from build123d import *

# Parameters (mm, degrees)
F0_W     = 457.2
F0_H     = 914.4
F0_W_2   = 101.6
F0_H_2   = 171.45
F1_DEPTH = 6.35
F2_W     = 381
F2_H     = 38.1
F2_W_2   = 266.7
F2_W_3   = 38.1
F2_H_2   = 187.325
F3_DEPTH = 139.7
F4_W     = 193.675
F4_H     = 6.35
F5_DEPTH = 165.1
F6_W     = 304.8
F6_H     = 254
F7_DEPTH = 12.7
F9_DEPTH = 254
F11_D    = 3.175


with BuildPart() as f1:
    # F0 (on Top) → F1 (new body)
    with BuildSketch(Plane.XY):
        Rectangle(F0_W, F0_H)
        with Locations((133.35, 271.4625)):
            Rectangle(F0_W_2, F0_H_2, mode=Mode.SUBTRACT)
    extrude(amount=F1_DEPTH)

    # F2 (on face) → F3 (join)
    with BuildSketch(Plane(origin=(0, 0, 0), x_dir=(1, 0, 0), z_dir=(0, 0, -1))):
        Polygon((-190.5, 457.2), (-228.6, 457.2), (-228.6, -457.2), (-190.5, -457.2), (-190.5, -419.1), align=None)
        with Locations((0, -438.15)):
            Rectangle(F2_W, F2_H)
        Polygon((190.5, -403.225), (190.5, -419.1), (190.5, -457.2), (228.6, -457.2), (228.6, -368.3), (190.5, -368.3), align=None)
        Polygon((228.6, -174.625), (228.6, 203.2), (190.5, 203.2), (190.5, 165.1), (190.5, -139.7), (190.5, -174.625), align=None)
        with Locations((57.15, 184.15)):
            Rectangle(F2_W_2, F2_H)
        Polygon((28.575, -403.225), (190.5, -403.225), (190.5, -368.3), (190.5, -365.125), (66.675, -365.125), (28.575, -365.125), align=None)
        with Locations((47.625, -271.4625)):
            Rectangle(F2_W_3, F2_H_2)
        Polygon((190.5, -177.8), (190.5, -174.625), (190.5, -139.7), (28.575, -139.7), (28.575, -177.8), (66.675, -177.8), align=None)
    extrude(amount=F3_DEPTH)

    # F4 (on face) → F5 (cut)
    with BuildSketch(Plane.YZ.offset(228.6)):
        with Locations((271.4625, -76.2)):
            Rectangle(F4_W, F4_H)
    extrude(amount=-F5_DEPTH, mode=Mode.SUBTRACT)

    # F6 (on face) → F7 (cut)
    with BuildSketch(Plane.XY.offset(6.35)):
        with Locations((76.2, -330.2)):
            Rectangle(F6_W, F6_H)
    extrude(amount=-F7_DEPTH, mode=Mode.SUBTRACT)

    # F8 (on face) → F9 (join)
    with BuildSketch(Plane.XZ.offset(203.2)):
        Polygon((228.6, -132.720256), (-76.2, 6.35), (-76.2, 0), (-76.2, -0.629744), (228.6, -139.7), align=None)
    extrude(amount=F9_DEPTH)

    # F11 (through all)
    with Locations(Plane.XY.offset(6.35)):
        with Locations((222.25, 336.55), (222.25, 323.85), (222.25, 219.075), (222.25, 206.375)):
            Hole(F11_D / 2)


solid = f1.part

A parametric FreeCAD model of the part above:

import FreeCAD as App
import Part
import Sketcher
from FreeCAD import Vector
Q = App.Units.Quantity

doc = App.newDocument("Part")
body = doc.addObject("PartDesign::Body", "Body")

# Sketch on XY plane
sketch1 = body.newObject("Sketcher::SketchObject", "Sketch")
sketch1.AttachmentSupport = (doc.getObject("XY_Plane"), [""])
sketch1.MapMode = "FlatFace"
sketch1.addGeometry(Part.LineSegment(Vector(-229, 457, 0), Vector(-229, -457, 0)), False)
sketch1.addGeometry(Part.LineSegment(Vector(-229, -457, 0), Vector(229, -457, 0)), False)
sketch1.addGeometry(Part.LineSegment(Vector(229, -457, 0), Vector(229, 457, 0)), False)
sketch1.addGeometry(Part.LineSegment(Vector(229, 457, 0), Vector(-229, 457, 0)), False)
sketch1.addGeometry(Part.LineSegment(Vector(184, 186, 0), Vector(83, 186, 0)), False)
sketch1.addGeometry(Part.LineSegment(Vector(83, 186, 0), Vector(83, 357, 0)), False)
sketch1.addGeometry(Part.LineSegment(Vector(83, 357, 0), Vector(184, 357, 0)), False)
sketch1.addGeometry(Part.LineSegment(Vector(184, 357, 0), Vector(184, 186, 0)), False)
sketch1.addConstraint(Sketcher.Constraint("Coincident", 0, 2, 1, 1))
sketch1.addConstraint(Sketcher.Constraint("Coincident", 1, 2, 2, 1))
sketch1.addConstraint(Sketcher.Constraint("Coincident", 2, 2, 3, 1))
sketch1.addConstraint(Sketcher.Constraint("Coincident", 3, 2, 0, 1))
sketch1.addConstraint(Sketcher.Constraint("Coincident", 4, 2, 5, 1))
sketch1.addConstraint(Sketcher.Constraint("Coincident", 5, 2, 6, 1))
sketch1.addConstraint(Sketcher.Constraint("Coincident", 6, 2, 7, 1))
sketch1.addConstraint(Sketcher.Constraint("Coincident", 7, 2, 4, 1))
sketch1.addConstraint(Sketcher.Constraint("Vertical", 0))
sketch1.addConstraint(Sketcher.Constraint("Horizontal", 1))
sketch1.addConstraint(Sketcher.Constraint("Vertical", 2))
sketch1.addConstraint(Sketcher.Constraint("Horizontal", 3))
sketch1.addConstraint(Sketcher.Constraint("Horizontal", 4))
sketch1.addConstraint(Sketcher.Constraint("Vertical", 5))
sketch1.addConstraint(Sketcher.Constraint("Horizontal", 6))
sketch1.addConstraint(Sketcher.Constraint("Vertical", 7))
sketch1.addConstraint(Sketcher.Constraint("Symmetric", 0, 2, 2, 2, -1, 1))
sketch1.addConstraint(Sketcher.Constraint("DistanceX", 1, 1, 1, 2, Q("18 in")))
sketch1.addConstraint(Sketcher.Constraint("DistanceX", 4, 2, 4, 1, Q("4 in")))
sketch1.addConstraint(Sketcher.Constraint("DistanceY", 0, 2, 0, 1, Q("36 in")))
sketch1.addConstraint(Sketcher.Constraint("DistanceY", 5, 1, 5, 2, Q("6.75 in")))
sketch1.addConstraint(Sketcher.Constraint("DistanceX", -1, 1, 4, 2, Q("3.25 in")))
sketch1.addConstraint(Sketcher.Constraint("DistanceY", -1, 1, 4, 2, Q("7.3125 in")))
pad1 = body.newObject("PartDesign::Pad", "Pad")
pad1.Profile = sketch1
pad1.Length = Q("0.25 in")

# Sketch on XY plane
sketch2 = body.newObject("Sketcher::SketchObject", "Sketch001")
sketch2.AttachmentSupport = (doc.getObject("XY_Plane"), [""])
sketch2.MapMode = "FlatFace"
sketch2.addGeometry(Part.LineSegment(Vector(-190.5, -457.2, 0), Vector(-228.6, -457.2, 0)), False)
sketch2.addGeometry(Part.LineSegment(Vector(-228.6, -457.2, 0), Vector(-228.6, 457.2, 0)), False)
sketch2.addGeometry(Part.LineSegment(Vector(-228.6, 457.2, 0), Vector(228.6, 457.2, 0)), False)
sketch2.addGeometry(Part.LineSegment(Vector(228.6, 457.2, 0), Vector(228.6, 368.3, 0)), False)
sketch2.addGeometry(Part.LineSegment(Vector(228.6, 368.3, 0), Vector(190.5, 368.3, 0)), False)
sketch2.addGeometry(Part.LineSegment(Vector(190.5, 368.3, 0), Vector(190.5, 365.1, 0)), False)
sketch2.addGeometry(Part.LineSegment(Vector(190.5, 365.1, 0), Vector(66.7, 365.1, 0)), False)
sketch2.addGeometry(Part.LineSegment(Vector(66.7, 365.1, 0), Vector(66.7, 177.8, 0)), False)
sketch2.addGeometry(Part.LineSegment(Vector(66.7, 177.8, 0), Vector(190.5, 177.8, 0)), False)
sketch2.addGeometry(Part.LineSegment(Vector(190.5, 177.8, 0), Vector(190.5, 174.6, 0)), False)
sketch2.addGeometry(Part.LineSegment(Vector(190.5, 174.6, 0), Vector(228.6, 174.6, 0)), False)
sketch2.addGeometry(Part.LineSegment(Vector(228.6, 174.6, 0), Vector(228.6, -203.2, 0)), False)
sketch2.addGeometry(Part.LineSegment(Vector(228.6, -203.2, 0), Vector(-76.2, -203.2, 0)), False)
sketch2.addGeometry(Part.LineSegment(Vector(-76.2, -203.2, 0), Vector(-76.2, -165.1, 0)), False)
sketch2.addGeometry(Part.LineSegment(Vector(-76.2, -165.1, 0), Vector(190.5, -165.1, 0)), False)
sketch2.addGeometry(Part.LineSegment(Vector(190.5, -165.1, 0), Vector(190.5, 139.7, 0)), False)
sketch2.addGeometry(Part.LineSegment(Vector(190.5, 139.7, 0), Vector(28.6, 139.7, 0)), False)
sketch2.addGeometry(Part.LineSegment(Vector(28.6, 139.7, 0), Vector(28.6, 403.2, 0)), False)
sketch2.addGeometry(Part.LineSegment(Vector(28.6, 403.2, 0), Vector(190.5, 403.2, 0)), False)
sketch2.addGeometry(Part.LineSegment(Vector(190.5, 403.2, 0), Vector(190.5, 419.1, 0)), False)
sketch2.addGeometry(Part.LineSegment(Vector(190.5, 419.1, 0), Vector(-190.5, 419.1, 0)), False)
sketch2.addGeometry(Part.LineSegment(Vector(-190.5, 419.1, 0), Vector(-190.5, -457.2, 0)), False)
sketch2.addConstraint(Sketcher.Constraint("Coincident", 0, 2, 1, 1))
sketch2.addConstraint(Sketcher.Constraint("Coincident", 1, 2, 2, 1))
sketch2.addConstraint(Sketcher.Constraint("Coincident", 2, 2, 3, 1))
sketch2.addConstraint(Sketcher.Constraint("Coincident", 3, 2, 4, 1))
sketch2.addConstraint(Sketcher.Constraint("Coincident", 4, 2, 5, 1))
sketch2.addConstraint(Sketcher.Constraint("Coincident", 5, 2, 6, 1))
sketch2.addConstraint(Sketcher.Constraint("Coincident", 6, 2, 7, 1))
sketch2.addConstraint(Sketcher.Constraint("Coincident", 7, 2, 8, 1))
sketch2.addConstraint(Sketcher.Constraint("Coincident", 8, 2, 9, 1))
sketch2.addConstraint(Sketcher.Constraint("Coincident", 9, 2, 10, 1))
sketch2.addConstraint(Sketcher.Constraint("Coincident", 10, 2, 11, 1))
sketch2.addConstraint(Sketcher.Constraint("Coincident", 11, 2, 12, 1))
sketch2.addConstraint(Sketcher.Constraint("Coincident", 12, 2, 13, 1))
sketch2.addConstraint(Sketcher.Constraint("Coincident", 13, 2, 14, 1))
sketch2.addConstraint(Sketcher.Constraint("Coincident", 14, 2, 15, 1))
sketch2.addConstraint(Sketcher.Constraint("Coincident", 15, 2, 16, 1))
sketch2.addConstraint(Sketcher.Constraint("Coincident", 16, 2, 17, 1))
sketch2.addConstraint(Sketcher.Constraint("Coincident", 17, 2, 18, 1))
sketch2.addConstraint(Sketcher.Constraint("Coincident", 18, 2, 19, 1))
sketch2.addConstraint(Sketcher.Constraint("Coincident", 19, 2, 20, 1))
sketch2.addConstraint(Sketcher.Constraint("Coincident", 20, 2, 21, 1))
sketch2.addConstraint(Sketcher.Constraint("Coincident", 21, 2, 0, 1))
sketch2.addConstraint(Sketcher.Constraint("Horizontal", 0))
sketch2.addConstraint(Sketcher.Constraint("Vertical", 1))
sketch2.addConstraint(Sketcher.Constraint("Horizontal", 2))
sketch2.addConstraint(Sketcher.Constraint("Vertical", 3))
sketch2.addConstraint(Sketcher.Constraint("Horizontal", 4))
sketch2.addConstraint(Sketcher.Constraint("Vertical", 5))
sketch2.addConstraint(Sketcher.Constraint("Horizontal", 6))
sketch2.addConstraint(Sketcher.Constraint("Vertical", 7))
sketch2.addConstraint(Sketcher.Constraint("Horizontal", 8))
sketch2.addConstraint(Sketcher.Constraint("Vertical", 9))
sketch2.addConstraint(Sketcher.Constraint("Horizontal", 10))
sketch2.addConstraint(Sketcher.Constraint("Vertical", 11))
sketch2.addConstraint(Sketcher.Constraint("Horizontal", 12))
sketch2.addConstraint(Sketcher.Constraint("Vertical", 13))
sketch2.addConstraint(Sketcher.Constraint("Horizontal", 14))
sketch2.addConstraint(Sketcher.Constraint("Vertical", 15))
sketch2.addConstraint(Sketcher.Constraint("Horizontal", 16))
sketch2.addConstraint(Sketcher.Constraint("Vertical", 17))
sketch2.addConstraint(Sketcher.Constraint("Horizontal", 18))
sketch2.addConstraint(Sketcher.Constraint("Vertical", 19))
sketch2.addConstraint(Sketcher.Constraint("Horizontal", 20))
sketch2.addConstraint(Sketcher.Constraint("Vertical", 21))
sketch2.addConstraint(Sketcher.Constraint("Symmetric", 0, 2, 2, 2, -1, 1))
sketch2.addConstraint(Sketcher.Constraint("Vertical", 5, 2, 8, 2))
sketch2.addConstraint(Sketcher.Constraint("Vertical", 3, 2, 10, 2))
sketch2.addConstraint(Sketcher.Constraint("Vertical", 9, 2, 14, 2))
sketch2.addConstraint(Sketcher.Constraint("Vertical", 15, 2, 18, 2))
sketch2.addConstraint(Sketcher.Constraint("Equal", 0, 4))
sketch2.addConstraint(Sketcher.Constraint("Equal", 5, 9))
sketch2.addConstraint(Sketcher.Constraint("Equal", 10, 13))
sketch2.addConstraint(Sketcher.Constraint("Equal", 12, 15))
sketch2.addConstraint(Sketcher.Constraint("DistanceX", 2, 1, 2, 2, Q("18 in")))
sketch2.addConstraint(Sketcher.Constraint("DistanceX", 12, 2, 12, 1, Q("12 in")))
sketch2.addConstraint(Sketcher.Constraint("DistanceX", 20, 2, 20, 1, Q("15 in")))
sketch2.addConstraint(Sketcher.Constraint("DistanceY", 1, 1, 1, 2, Q("36 in")))
sketch2.addConstraint(Sketcher.Constraint("DistanceY", 3, 2, 3, 1, Q("3.5 in")))
sketch2.addConstraint(Sketcher.Constraint("DistanceY", 21, 2, 21, 1, Q("34.5 in")))
sketch2.addConstraint(Sketcher.Constraint("DistanceY", -1, 1, 7, 2, Q("7 in")))
sketch2.addConstraint(Sketcher.Constraint("DistanceY", 11, 2, -1, 1, Q("8 in")))
sketch2.addConstraint(Sketcher.Constraint("DistanceX", 16, 2, 7, 2, Q("1.5 in")))
sketch2.addConstraint(Sketcher.Constraint("DistanceY", 6, 2, 17, 2, Q("1.5 in")))
sketch2.addConstraint(Sketcher.Constraint("DistanceX", 6, 2, 6, 1, Q("4.875 in")))
sketch2.addConstraint(Sketcher.Constraint("DistanceY", 5, 2, 5, 1, Q("0.125 in")))
pad2 = body.newObject("PartDesign::Pad", "Pad001")
pad2.Profile = sketch2
pad2.Length = Q("5.5 in")
pad2.Reversed = True

# Sketch on YZ plane
sketch3 = body.newObject("Sketcher::SketchObject", "Sketch002")
sketch3.AttachmentSupport = (doc.getObject("YZ_Plane"), [""])
sketch3.MapMode = "FlatFace"
sketch3.AttachmentOffset = App.Placement(Vector(0, 0, 9 * 25.4), App.Rotation())
sketch3.addGeometry(Part.LineSegment(Vector(175, -73, 0), Vector(175, -79, 0)), False)
sketch3.addGeometry(Part.LineSegment(Vector(175, -79, 0), Vector(368, -79, 0)), False)
sketch3.addGeometry(Part.LineSegment(Vector(368, -79, 0), Vector(368, -73, 0)), False)
sketch3.addGeometry(Part.LineSegment(Vector(368, -73, 0), Vector(175, -73, 0)), False)
sketch3.addConstraint(Sketcher.Constraint("Coincident", 0, 2, 1, 1))
sketch3.addConstraint(Sketcher.Constraint("Coincident", 1, 2, 2, 1))
sketch3.addConstraint(Sketcher.Constraint("Coincident", 2, 2, 3, 1))
sketch3.addConstraint(Sketcher.Constraint("Coincident", 3, 2, 0, 1))
sketch3.addConstraint(Sketcher.Constraint("Vertical", 0))
sketch3.addConstraint(Sketcher.Constraint("Horizontal", 1))
sketch3.addConstraint(Sketcher.Constraint("Vertical", 2))
sketch3.addConstraint(Sketcher.Constraint("Horizontal", 3))
sketch3.addConstraint(Sketcher.Constraint("DistanceY", 0, 2, 0, 1, Q("0.25 in")))
sketch3.addConstraint(Sketcher.Constraint("DistanceX", -1, 1, 1, 2, Q("14.5 in")))
sketch3.addConstraint(Sketcher.Constraint("DistanceX", 1, 1, 1, 2, Q("7.625 in")))
sketch3.addConstraint(Sketcher.Constraint("DistanceY", 0, 2, -1, 1, Q("3.125 in")))
pocket1 = body.newObject("PartDesign::Pocket", "Pocket")
pocket1.Profile = sketch3
pocket1.Length = Q("6.5 in")

# Sketch on XY plane
sketch4 = body.newObject("Sketcher::SketchObject", "Sketch003")
sketch4.AttachmentSupport = (doc.getObject("XY_Plane"), [""])
sketch4.MapMode = "FlatFace"
sketch4.AttachmentOffset = App.Placement(Vector(0, 0, 0.25 * 25.4), App.Rotation())
sketch4.addGeometry(Part.LineSegment(Vector(-76, -203, 0), Vector(-76, -457, 0)), False)
sketch4.addGeometry(Part.LineSegment(Vector(-76, -457, 0), Vector(229, -457, 0)), False)
sketch4.addGeometry(Part.LineSegment(Vector(229, -457, 0), Vector(229, -203, 0)), False)
sketch4.addGeometry(Part.LineSegment(Vector(229, -203, 0), Vector(-76, -203, 0)), False)
sketch4.addConstraint(Sketcher.Constraint("Coincident", 0, 2, 1, 1))
sketch4.addConstraint(Sketcher.Constraint("Coincident", 1, 2, 2, 1))
sketch4.addConstraint(Sketcher.Constraint("Coincident", 2, 2, 3, 1))
sketch4.addConstraint(Sketcher.Constraint("Coincident", 3, 2, 0, 1))
sketch4.addConstraint(Sketcher.Constraint("Vertical", 0))
sketch4.addConstraint(Sketcher.Constraint("Horizontal", 1))
sketch4.addConstraint(Sketcher.Constraint("Vertical", 2))
sketch4.addConstraint(Sketcher.Constraint("Horizontal", 3))
sketch4.addConstraint(Sketcher.Constraint("DistanceX", 1, 1, 1, 2, Q("12 in")))
sketch4.addConstraint(Sketcher.Constraint("DistanceY", 0, 2, 0, 1, Q("10 in")))
sketch4.addConstraint(Sketcher.Constraint("DistanceX", 0, 2, -1, 1, Q("3 in")))
sketch4.addConstraint(Sketcher.Constraint("DistanceY", 0, 2, -1, 1, Q("18 in")))
pocket2 = body.newObject("PartDesign::Pocket", "Pocket001")
pocket2.Profile = sketch4
pocket2.Length = Q("0.5 in")

# Sketch on XZ plane
sketch5 = body.newObject("Sketcher::SketchObject", "Sketch004")
sketch5.AttachmentSupport = (doc.getObject("XZ_Plane"), [""])
sketch5.MapMode = "FlatFace"
sketch5.AttachmentOffset = App.Placement(Vector(0, 0, 8 * 25.4), App.Rotation())
sketch5.addGeometry(Part.LineSegment(Vector(229, -133, 0), Vector(-76, 6, 0)), False)
sketch5.addGeometry(Part.LineSegment(Vector(-76, 6, 0), Vector(-76, -1, 0)), False)
sketch5.addGeometry(Part.LineSegment(Vector(-76, -1, 0), Vector(229, -140, 0)), False)
sketch5.addGeometry(Part.LineSegment(Vector(229, -140, 0), Vector(229, -133, 0)), False)
sketch5.addConstraint(Sketcher.Constraint("Coincident", 0, 2, 1, 1))
sketch5.addConstraint(Sketcher.Constraint("Coincident", 1, 2, 2, 1))
sketch5.addConstraint(Sketcher.Constraint("Coincident", 2, 2, 3, 1))
sketch5.addConstraint(Sketcher.Constraint("Coincident", 3, 2, 0, 1))
sketch5.addConstraint(Sketcher.Constraint("Vertical", 1))
sketch5.addConstraint(Sketcher.Constraint("Vertical", 3))
sketch5.addConstraint(Sketcher.Constraint("Parallel", 0, 2))
sketch5.addConstraint(Sketcher.Constraint("DistanceX", 0, 2, -1, 1, Q("3 in")))
sketch5.addConstraint(Sketcher.Constraint("DistanceX", -1, 1, 2, 2, Q("9 in")))
sketch5.addConstraint(Sketcher.Constraint("DistanceY", 2, 2, -1, 1, Q("5.5 in")))
sketch5.addConstraint(Sketcher.Constraint("DistanceY", -1, 1, 0, 2, Q("0.25 in")))
sketch5.addConstraint(Sketcher.Constraint("DistanceY", 1, 2, 1, 1, Q("6.979744 mm")))
pad3 = body.newObject("PartDesign::Pad", "Pad002")
pad3.Profile = sketch5
pad3.Length = Q("10 in")

# Sketch on XY plane
sketch6 = body.newObject("Sketcher::SketchObject", "Sketch005")
sketch6.AttachmentSupport = (doc.getObject("XY_Plane"), [""])
sketch6.MapMode = "FlatFace"
sketch6.AttachmentOffset = App.Placement(Vector(0, 0, 0.25 * 25.4), App.Rotation())
sketch6.addGeometry(Part.Circle(Vector(222.2, 336.6, 0), Vector(0, 0, 1), 1.6), False)
sketch6.addGeometry(Part.Circle(Vector(222.2, 323.9, 0), Vector(0, 0, 1), 1.6), False)
sketch6.addGeometry(Part.Circle(Vector(222.2, 219.1, 0), Vector(0, 0, 1), 1.6), False)
sketch6.addGeometry(Part.Circle(Vector(222.2, 206.4, 0), Vector(0, 0, 1), 1.6), False)
sketch6.addConstraint(Sketcher.Constraint("Equal", 0, 1))
sketch6.addConstraint(Sketcher.Constraint("Equal", 1, 2))
sketch6.addConstraint(Sketcher.Constraint("Equal", 2, 3))
sketch6.addConstraint(Sketcher.Constraint("Vertical", 0, 3, 1, 3))
sketch6.addConstraint(Sketcher.Constraint("Vertical", 1, 3, 2, 3))
sketch6.addConstraint(Sketcher.Constraint("Vertical", 2, 3, 3, 3))
sketch6.addConstraint(Sketcher.Constraint("Diameter", 0, Q("0.125 in")))
sketch6.addConstraint(Sketcher.Constraint("DistanceY", 1, 3, 0, 3, Q("0.5 in")))
sketch6.addConstraint(Sketcher.Constraint("DistanceY", 3, 3, 2, 3, Q("0.5 in")))
sketch6.addConstraint(Sketcher.Constraint("DistanceX", -1, 1, 0, 3, Q("8.75 in")))
sketch6.addConstraint(Sketcher.Constraint("DistanceY", -1, 1, 0, 3, Q("13.25 in")))
sketch6.addConstraint(Sketcher.Constraint("DistanceY", -1, 1, 2, 3, Q("8.625 in")))
doc.recompute()
hole = body.newObject("PartDesign::Hole", "Hole")
hole.Profile = sketch6
hole.ThreadType = "None"
hole.Diameter = Q("0.125 in")
hole.DepthType = "ThroughAll"

doc.recompute()
